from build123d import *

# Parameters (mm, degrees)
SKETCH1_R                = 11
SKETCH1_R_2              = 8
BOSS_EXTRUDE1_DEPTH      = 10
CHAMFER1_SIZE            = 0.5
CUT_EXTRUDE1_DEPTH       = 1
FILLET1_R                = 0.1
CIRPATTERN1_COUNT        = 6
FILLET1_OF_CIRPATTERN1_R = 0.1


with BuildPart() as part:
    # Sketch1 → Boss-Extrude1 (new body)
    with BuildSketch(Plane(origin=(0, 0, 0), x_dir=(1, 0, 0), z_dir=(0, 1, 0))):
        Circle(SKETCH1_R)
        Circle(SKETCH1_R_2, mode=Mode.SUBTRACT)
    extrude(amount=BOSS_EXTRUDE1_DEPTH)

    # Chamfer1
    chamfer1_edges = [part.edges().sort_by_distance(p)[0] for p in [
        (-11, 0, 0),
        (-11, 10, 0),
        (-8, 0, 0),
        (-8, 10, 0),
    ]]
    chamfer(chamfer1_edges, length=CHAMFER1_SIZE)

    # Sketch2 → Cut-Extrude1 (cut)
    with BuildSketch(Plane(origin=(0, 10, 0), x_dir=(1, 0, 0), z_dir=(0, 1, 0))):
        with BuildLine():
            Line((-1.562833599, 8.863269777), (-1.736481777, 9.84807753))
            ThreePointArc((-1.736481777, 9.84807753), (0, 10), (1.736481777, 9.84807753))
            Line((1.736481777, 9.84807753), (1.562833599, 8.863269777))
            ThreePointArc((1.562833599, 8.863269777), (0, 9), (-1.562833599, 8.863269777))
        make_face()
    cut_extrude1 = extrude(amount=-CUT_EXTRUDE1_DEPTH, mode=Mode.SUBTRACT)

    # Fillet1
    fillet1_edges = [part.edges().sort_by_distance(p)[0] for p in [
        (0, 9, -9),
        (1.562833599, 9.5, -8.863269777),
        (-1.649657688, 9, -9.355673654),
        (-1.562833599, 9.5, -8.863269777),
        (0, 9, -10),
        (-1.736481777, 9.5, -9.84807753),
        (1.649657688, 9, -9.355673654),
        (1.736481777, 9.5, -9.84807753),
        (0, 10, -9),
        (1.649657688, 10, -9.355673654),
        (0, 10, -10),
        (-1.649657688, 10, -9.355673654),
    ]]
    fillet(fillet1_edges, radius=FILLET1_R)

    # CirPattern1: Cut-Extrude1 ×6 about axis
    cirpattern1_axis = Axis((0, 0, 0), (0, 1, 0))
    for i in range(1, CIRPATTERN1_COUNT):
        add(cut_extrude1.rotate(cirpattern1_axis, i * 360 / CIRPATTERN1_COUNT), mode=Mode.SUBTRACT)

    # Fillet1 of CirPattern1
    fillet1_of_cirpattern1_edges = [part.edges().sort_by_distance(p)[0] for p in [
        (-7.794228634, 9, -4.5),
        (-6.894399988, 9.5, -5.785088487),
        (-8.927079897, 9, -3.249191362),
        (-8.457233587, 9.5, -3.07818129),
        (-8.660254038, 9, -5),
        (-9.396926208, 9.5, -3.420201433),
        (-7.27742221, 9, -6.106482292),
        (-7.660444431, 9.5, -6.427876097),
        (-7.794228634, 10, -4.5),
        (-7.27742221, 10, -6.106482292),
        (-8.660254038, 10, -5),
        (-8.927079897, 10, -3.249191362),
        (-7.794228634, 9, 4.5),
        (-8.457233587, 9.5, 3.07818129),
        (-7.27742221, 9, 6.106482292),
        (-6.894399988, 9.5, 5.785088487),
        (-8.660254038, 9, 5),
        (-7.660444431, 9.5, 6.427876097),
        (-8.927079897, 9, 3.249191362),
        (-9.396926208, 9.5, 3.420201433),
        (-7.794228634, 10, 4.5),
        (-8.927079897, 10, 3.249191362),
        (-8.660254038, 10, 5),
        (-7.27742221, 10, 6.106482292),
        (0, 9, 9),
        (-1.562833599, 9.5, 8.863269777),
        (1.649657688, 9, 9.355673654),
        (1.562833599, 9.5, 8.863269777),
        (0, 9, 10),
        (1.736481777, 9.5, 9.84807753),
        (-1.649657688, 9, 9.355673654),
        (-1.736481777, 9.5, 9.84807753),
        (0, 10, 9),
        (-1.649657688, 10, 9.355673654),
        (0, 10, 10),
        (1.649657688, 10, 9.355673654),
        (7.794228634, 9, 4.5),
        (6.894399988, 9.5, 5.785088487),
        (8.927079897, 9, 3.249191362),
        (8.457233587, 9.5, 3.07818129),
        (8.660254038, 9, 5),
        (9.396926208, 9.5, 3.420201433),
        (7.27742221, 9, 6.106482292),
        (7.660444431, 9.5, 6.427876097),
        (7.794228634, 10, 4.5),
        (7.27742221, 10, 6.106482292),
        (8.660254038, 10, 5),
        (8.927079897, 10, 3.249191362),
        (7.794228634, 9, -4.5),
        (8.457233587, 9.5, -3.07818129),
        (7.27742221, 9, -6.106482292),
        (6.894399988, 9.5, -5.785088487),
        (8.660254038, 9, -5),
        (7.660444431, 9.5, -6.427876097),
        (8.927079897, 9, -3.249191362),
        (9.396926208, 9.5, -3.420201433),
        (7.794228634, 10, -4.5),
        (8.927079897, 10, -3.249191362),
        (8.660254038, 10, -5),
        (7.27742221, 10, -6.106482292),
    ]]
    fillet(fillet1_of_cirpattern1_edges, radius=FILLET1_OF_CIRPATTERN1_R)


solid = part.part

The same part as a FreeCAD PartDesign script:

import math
import FreeCAD as App
import Part
import Sketcher

V = App.Vector
Q = App.Units.Quantity


def edges_at(feature, points):
    """Names of the edges that pass closest to the given points."""
    edges = feature.Shape.Edges
    near = lambda p: min(range(len(edges)), key=lambda i: edges[i].distToShape(Part.Vertex(*p))[0])
    return sorted({f"Edge{near(p) + 1}" for p in points})

doc = App.newDocument("Part")
body = doc.addObject("PartDesign::Body", "Body")

# Sketch on XZ plane
sketch1 = doc.addObject("Sketcher::SketchObject", "Sketch")
body.addObject(sketch1)
sketch1.AttachmentSupport = (doc.XZ_Plane, [""])
sketch1.MapMode = "FlatFace"
sketch1.addGeometry([
    Part.Circle(V(0, 0, 0), V(0, 0, 1), 11),
    Part.Circle(V(0, 0, 0), V(0, 0, 1), 8),
], False)
sketch1.addConstraint([
    Sketcher.Constraint("Coincident", 0, 3, -1, 1),
    Sketcher.Constraint("Coincident", 1, 3, -1, 1),
    Sketcher.Constraint("Diameter", 0, 22.0),
    Sketcher.Constraint("Diameter", 1, 16.0),
])
pad1 = doc.addObject("PartDesign::Pad", "Pad")
body.addObject(pad1)
pad1.Profile = sketch1
pad1.Length = 10
pad1.Reversed = True
doc.recompute()

chamfer = doc.addObject("PartDesign::Chamfer", "Chamfer")
body.addObject(chamfer)
chamfer.Base = (pad1, edges_at(pad1, [
    (-11, 0, 0),
    (-11, 10, 0),
    (-8, 0, 0),
    (-8, 10, 0),
]))
chamfer.Size = 0.5

# Sketch on XZ plane
sketch2 = doc.addObject("Sketcher::SketchObject", "Sketch001")
body.addObject(sketch2)
sketch2.AttachmentSupport = (doc.XZ_Plane, [""])
sketch2.MapMode = "FlatFace"
sketch2.AttachmentOffset = App.Placement(V(0, 0, -10), App.Rotation())
sketch2.addGeometry([
    Part.LineSegment(V(-1.7, -9.8, 0), V(-1.6, -8.9, 0)),
    Part.ArcOfCircle(Part.Circle(V(0, 0, 0), V(0, 0, 1), 9), math.radians(-100), math.radians(-80)),
    Part.LineSegment(V(1.6, -8.9, 0), V(1.7, -9.8, 0)),
    Part.ArcOfCircle(Part.Circle(V(0, 0, 0), V(0, 0, 1), 10), math.radians(-100), math.radians(-80)),
], False)
sketch2.addConstraint([
    Sketcher.Constraint("Coincident", 0, 2, 1, 1),
    Sketcher.Constraint("Coincident", 1, 2, 2, 1),
    Sketcher.Constraint("Coincident", 2, 2, 3, 2),
    Sketcher.Constraint("Coincident", 3, 1, 0, 1),
    Sketcher.Constraint("Coincident", 1, 3, -1, 1),
    Sketcher.Constraint("Coincident", 3, 3, -1, 1),
    Sketcher.Constraint("Horizontal", 0, 2, 1, 2),
    Sketcher.Constraint("Horizontal", 2, 2, 3, 1),
    Sketcher.Constraint("Radius", 1, 9.0),
    Sketcher.Constraint("Radius", 3, 10.0),
    Sketcher.Constraint("Angle", 0, Q("80 deg")),
    Sketcher.Constraint("DistanceY", 0, 2, -1, 1, 8.86327),
])
pocket1 = doc.addObject("PartDesign::Pocket", "Pocket")
body.addObject(pocket1)
pocket1.Profile = sketch2
pocket1.Length = 1
pocket1.Reversed = True
doc.recompute()

fillet = doc.addObject("PartDesign::Fillet", "Fillet")
body.addObject(fillet)
fillet.Base = (pocket1, edges_at(pocket1, [
    (0, 9, -9),
    (1.563, 9.5, -8.863),
    (-1.65, 9, -9.356),
    (-1.563, 9.5, -8.863),
    (0, 9, -10),
    (-1.736, 9.5, -9.848),
    (1.65, 9, -9.356),
    (1.736, 9.5, -9.848),
    (0, 10, -9),
    (1.65, 10, -9.356),
    (0, 10, -10),
    (-1.65, 10, -9.356),
]))
fillet.Radius = 0.1
doc.recompute()

polarpattern = doc.addObject("PartDesign::PolarPattern", "PolarPattern")
body.addObject(polarpattern)
polarpattern.Originals = [pocket1]
polarpattern.Axis = (doc.Y_Axis, [""])
polarpattern.Angle = 360
polarpattern.Occurrences = 6
body.Tip = polarpattern
doc.recompute()

fillet2 = doc.addObject("PartDesign::Fillet", "Fillet001")
body.addObject(fillet2)
fillet2.Base = (polarpattern, edges_at(polarpattern, [
    (-7.794, 9, -4.5),
    (-6.894, 9.5, -5.785),
    (-8.927, 9, -3.249),
    (-8.457, 9.5, -3.078),
    (-8.66, 9, -5),
    (-9.397, 9.5, -3.42),
    (-7.277, 9, -6.106),
    (-7.66, 9.5, -6.428),
    (-7.794, 10, -4.5),
    (-7.277, 10, -6.106),
    (-8.66, 10, -5),
    (-8.927, 10, -3.249),
    (-7.794, 9, 4.5),
    (-8.457, 9.5, 3.078),
    (-7.277, 9, 6.106),
    (-6.894, 9.5, 5.785),
    (-8.66, 9, 5),
    (-7.66, 9.5, 6.428),
    (-8.927, 9, 3.249),
    (-9.397, 9.5, 3.42),
    (-7.794, 10, 4.5),
    (-8.927, 10, 3.249),
    (-8.66, 10, 5),
    (-7.277, 10, 6.106),
    (0, 9, 9),
    (-1.563, 9.5, 8.863),
    (1.65, 9, 9.356),
    (1.563, 9.5, 8.863),
    (0, 9, 10),
    (1.736, 9.5, 9.848),
    (-1.65, 9, 9.356),
    (-1.736, 9.5, 9.848),
    (0, 10, 9),
    (-1.65, 10, 9.356),
    (0, 10, 10),
    (1.65, 10, 9.356),
    (7.794, 9, 4.5),
    (6.894, 9.5, 5.785),
    (8.927, 9, 3.249),
    (8.457, 9.5, 3.078),
    (8.66, 9, 5),
    (9.397, 9.5, 3.42),
    (7.277, 9, 6.106),
    (7.66, 9.5, 6.428),
    (7.794, 10, 4.5),
    (7.277, 10, 6.106),
    (8.66, 10, 5),
    (8.927, 10, 3.249),
    (7.794, 9, -4.5),
    (8.457, 9.5, -3.078),
    (7.277, 9, -6.106),
    (6.894, 9.5, -5.785),
    (8.66, 9, -5),
    (7.66, 9.5, -6.428),
    (8.927, 9, -3.249),
    (9.397, 9.5, -3.42),
    (7.794, 10, -4.5),
    (8.927, 10, -3.249),
    (8.66, 10, -5),
    (7.277, 10, -6.106),
]))
fillet2.Radius = 0.1

doc.recompute()
